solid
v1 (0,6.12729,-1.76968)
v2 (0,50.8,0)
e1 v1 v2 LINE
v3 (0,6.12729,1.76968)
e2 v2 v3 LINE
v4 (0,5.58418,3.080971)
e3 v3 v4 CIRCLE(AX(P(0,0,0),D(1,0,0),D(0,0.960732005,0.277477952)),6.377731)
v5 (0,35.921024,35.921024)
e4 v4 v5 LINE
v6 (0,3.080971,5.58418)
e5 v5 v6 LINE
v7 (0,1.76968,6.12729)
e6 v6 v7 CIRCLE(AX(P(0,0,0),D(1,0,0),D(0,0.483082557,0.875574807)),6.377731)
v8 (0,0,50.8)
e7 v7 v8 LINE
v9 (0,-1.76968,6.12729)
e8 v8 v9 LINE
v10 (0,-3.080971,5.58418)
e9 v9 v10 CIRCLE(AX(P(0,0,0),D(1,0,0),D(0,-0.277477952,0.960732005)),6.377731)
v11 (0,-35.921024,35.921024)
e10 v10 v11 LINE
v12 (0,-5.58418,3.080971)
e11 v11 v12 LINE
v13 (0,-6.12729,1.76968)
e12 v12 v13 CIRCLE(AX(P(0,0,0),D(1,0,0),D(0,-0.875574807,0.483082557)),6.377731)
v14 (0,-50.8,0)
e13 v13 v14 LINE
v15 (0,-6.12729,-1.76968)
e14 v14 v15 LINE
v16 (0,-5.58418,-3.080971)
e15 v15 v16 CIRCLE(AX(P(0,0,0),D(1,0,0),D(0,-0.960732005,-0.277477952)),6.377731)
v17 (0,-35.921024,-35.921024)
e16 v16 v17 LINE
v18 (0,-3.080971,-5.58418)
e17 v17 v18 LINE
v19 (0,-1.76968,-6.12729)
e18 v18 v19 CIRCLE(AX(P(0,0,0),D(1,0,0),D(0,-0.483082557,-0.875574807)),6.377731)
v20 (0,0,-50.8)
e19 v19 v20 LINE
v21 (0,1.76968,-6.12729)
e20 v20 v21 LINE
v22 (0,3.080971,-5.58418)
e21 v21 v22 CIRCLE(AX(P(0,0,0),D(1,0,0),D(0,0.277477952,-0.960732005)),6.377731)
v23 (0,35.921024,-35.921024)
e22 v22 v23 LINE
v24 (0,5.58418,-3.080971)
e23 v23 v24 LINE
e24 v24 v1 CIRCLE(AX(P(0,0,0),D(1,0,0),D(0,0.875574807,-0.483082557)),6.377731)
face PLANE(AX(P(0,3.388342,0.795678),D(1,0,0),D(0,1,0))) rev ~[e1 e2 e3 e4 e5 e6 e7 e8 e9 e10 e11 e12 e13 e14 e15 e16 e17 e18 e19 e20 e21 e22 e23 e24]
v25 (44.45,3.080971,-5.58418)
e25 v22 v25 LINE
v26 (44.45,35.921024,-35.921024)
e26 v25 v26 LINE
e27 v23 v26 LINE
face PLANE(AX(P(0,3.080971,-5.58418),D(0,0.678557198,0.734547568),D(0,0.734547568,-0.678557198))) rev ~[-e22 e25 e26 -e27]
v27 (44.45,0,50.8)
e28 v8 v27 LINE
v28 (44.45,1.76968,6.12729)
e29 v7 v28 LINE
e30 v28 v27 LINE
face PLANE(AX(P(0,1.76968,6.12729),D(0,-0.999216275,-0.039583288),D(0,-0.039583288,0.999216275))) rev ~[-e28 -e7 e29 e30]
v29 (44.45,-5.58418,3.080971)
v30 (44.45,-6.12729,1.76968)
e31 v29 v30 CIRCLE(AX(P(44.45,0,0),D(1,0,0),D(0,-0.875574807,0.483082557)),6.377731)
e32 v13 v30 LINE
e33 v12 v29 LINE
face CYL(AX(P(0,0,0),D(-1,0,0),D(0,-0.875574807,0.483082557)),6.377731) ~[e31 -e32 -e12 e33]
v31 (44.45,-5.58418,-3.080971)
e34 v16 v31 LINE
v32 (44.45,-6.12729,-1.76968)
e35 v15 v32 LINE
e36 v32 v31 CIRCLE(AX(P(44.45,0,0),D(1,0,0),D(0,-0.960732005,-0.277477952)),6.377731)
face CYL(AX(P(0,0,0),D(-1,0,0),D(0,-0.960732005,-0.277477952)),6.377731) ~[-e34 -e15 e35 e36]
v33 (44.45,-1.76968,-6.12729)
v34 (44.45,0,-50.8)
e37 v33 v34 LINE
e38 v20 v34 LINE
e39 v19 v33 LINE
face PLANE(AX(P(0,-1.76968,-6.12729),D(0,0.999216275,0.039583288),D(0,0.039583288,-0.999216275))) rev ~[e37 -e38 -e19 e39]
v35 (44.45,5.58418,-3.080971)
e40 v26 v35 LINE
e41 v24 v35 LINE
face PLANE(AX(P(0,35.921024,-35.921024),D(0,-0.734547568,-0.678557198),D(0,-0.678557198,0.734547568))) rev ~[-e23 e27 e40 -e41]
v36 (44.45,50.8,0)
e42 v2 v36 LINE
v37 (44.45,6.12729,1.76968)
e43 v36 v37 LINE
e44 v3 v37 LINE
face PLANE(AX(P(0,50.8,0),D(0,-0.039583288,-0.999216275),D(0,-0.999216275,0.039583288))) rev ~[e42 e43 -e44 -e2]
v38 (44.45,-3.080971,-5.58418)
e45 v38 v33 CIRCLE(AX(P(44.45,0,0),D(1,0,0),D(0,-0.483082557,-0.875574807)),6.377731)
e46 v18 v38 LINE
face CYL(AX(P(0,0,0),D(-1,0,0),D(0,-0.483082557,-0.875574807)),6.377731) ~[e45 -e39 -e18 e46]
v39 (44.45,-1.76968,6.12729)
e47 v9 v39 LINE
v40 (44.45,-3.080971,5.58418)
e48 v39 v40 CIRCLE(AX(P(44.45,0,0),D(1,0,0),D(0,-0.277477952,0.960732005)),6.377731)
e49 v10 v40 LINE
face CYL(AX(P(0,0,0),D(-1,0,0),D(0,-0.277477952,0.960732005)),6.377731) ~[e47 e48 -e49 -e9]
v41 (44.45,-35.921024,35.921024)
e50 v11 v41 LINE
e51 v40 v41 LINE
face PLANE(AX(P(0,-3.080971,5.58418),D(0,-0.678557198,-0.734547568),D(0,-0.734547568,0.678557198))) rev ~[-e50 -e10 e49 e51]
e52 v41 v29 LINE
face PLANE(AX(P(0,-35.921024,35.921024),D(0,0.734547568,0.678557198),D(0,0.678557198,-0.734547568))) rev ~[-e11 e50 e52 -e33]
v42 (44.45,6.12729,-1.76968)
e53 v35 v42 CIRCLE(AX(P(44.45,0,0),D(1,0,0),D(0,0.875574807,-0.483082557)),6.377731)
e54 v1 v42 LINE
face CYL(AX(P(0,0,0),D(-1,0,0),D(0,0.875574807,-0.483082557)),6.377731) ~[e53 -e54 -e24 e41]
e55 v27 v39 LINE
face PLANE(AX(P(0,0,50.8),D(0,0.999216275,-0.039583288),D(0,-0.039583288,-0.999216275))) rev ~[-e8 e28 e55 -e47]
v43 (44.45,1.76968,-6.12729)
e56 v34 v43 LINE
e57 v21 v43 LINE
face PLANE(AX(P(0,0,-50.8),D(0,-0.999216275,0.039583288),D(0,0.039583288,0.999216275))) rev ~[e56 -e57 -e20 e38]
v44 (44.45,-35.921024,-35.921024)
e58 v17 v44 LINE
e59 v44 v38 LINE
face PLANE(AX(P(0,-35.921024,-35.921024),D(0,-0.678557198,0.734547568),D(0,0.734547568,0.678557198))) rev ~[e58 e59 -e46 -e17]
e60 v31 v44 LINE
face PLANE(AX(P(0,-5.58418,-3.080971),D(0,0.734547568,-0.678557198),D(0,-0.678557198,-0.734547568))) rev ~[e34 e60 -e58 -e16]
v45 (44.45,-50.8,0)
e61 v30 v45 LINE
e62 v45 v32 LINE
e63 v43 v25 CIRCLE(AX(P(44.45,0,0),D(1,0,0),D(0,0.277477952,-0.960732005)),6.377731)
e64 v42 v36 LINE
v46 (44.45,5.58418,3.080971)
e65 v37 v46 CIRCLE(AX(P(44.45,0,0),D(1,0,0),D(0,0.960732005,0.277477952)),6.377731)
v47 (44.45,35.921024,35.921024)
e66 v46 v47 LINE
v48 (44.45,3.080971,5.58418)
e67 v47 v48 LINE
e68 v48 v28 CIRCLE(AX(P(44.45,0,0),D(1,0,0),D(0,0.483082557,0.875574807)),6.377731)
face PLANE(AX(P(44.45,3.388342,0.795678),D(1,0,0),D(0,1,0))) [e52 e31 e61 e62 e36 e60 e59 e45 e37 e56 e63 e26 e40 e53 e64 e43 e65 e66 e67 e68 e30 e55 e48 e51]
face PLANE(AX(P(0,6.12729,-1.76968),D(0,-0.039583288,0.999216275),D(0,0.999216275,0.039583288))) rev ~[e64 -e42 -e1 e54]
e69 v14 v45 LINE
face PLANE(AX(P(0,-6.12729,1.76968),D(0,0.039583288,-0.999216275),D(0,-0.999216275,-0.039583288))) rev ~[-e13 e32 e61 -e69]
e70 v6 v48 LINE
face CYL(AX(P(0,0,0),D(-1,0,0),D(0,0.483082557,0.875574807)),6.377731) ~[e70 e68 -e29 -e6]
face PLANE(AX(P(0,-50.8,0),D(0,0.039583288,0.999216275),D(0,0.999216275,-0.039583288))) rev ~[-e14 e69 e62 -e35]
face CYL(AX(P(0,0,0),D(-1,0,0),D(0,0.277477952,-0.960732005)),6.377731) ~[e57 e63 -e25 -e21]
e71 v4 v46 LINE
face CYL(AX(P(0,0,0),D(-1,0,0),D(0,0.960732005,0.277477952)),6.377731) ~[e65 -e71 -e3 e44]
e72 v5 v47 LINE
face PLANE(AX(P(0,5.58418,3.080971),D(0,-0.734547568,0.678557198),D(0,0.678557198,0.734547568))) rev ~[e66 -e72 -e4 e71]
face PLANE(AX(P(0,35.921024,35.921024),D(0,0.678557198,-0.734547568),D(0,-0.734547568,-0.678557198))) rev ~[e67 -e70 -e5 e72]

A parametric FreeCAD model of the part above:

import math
import FreeCAD as App
import Part
import Sketcher
from FreeCAD import Vector
Q = App.Units.Quantity

doc = App.newDocument("Part")
params = doc.addObject("Spreadsheet::Sheet", "Params")
for row, (alias, value) in enumerate([
    ("pad1_length", "1.75 in"),
], start=1):
    params.set(f"A{row}", alias)
    params.set(f"B{row}", "=" + value)
    params.setAlias(f"B{row}", alias)

body = doc.addObject("PartDesign::Body", "Body")

sketch1 = body.newObject("Sketcher::SketchObject", "Sketch")
sketch1.AttachmentSupport = (doc.getObject("YZ_Plane"), [""])
sketch1.MapMode = "FlatFace"
sketch1.addGeometry(Part.LineSegment(Vector(1.76968, 6.12729, 0), Vector(0, 50.8, 0)), False)
sketch1.addGeometry(Part.LineSegment(Vector(0, 50.8, 0), Vector(-1.76968, 6.12729, 0)), False)
sketch1.addGeometry(Part.ArcOfCircle(Part.Circle(Vector(0, 0, 0), Vector(0, 0, 1), 6.377731), math.radians(106.109738), math.radians(118.886923)), False)
sketch1.addGeometry(Part.LineSegment(Vector(-3.080971, 5.58418, 0), Vector(-35.921024, 35.921024, 0)), False)
sketch1.addGeometry(Part.LineSegment(Vector(-35.921024, 35.921024, 0), Vector(-5.58418, 3.080971, 0)), False)
sketch1.addGeometry(Part.ArcOfCircle(Part.Circle(Vector(0, 0, 0), Vector(0, 0, 1), 6.377731), math.radians(151.113077), math.radians(163.890262)), False)
sketch1.addGeometry(Part.LineSegment(Vector(-6.12729, 1.76968, 0), Vector(-50.8, 0, 0)), False)
sketch1.addGeometry(Part.LineSegment(Vector(-50.8, 0, 0), Vector(-6.12729, -1.76968, 0)), False)
sketch1.addGeometry(Part.ArcOfCircle(Part.Circle(Vector(0, 0, 0), Vector(0, 0, 1), 6.377731), math.radians(-163.890262), math.radians(-151.113077)), False)
sketch1.addGeometry(Part.LineSegment(Vector(-5.58418, -3.080971, 0), Vector(-35.921024, -35.921024, 0)), False)
sketch1.addGeometry(Part.LineSegment(Vector(-35.921024, -35.921024, 0), Vector(-3.080971, -5.58418, 0)), False)
sketch1.addGeometry(Part.ArcOfCircle(Part.Circle(Vector(0, 0, 0), Vector(0, 0, 1), 6.377731), math.radians(-118.886923), math.radians(-106.109738)), False)
sketch1.addGeometry(Part.LineSegment(Vector(-1.76968, -6.12729, 0), Vector(0, -50.8, 0)), False)
sketch1.addGeometry(Part.LineSegment(Vector(0, -50.8, 0), Vector(1.76968, -6.12729, 0)), False)
sketch1.addGeometry(Part.ArcOfCircle(Part.Circle(Vector(0, 0, 0), Vector(0, 0, 1), 6.377731), math.radians(-73.890262), math.radians(-61.113077)), False)
sketch1.addGeometry(Part.LineSegment(Vector(3.080971, -5.58418, 0), Vector(35.921024, -35.921024, 0)), False)
sketch1.addGeometry(Part.LineSegment(Vector(35.921024, -35.921024, 0), Vector(5.58418, -3.080971, 0)), False)
sketch1.addGeometry(Part.ArcOfCircle(Part.Circle(Vector(0, 0, 0), Vector(0, 0, 1), 6.377731), math.radians(-28.886923), math.radians(-16.109738)), False)
sketch1.addGeometry(Part.LineSegment(Vector(6.12729, -1.76968, 0), Vector(50.8, 0, 0)), False)
sketch1.addGeometry(Part.LineSegment(Vector(50.8, 0, 0), Vector(6.12729, 1.76968, 0)), False)
sketch1.addGeometry(Part.ArcOfCircle(Part.Circle(Vector(0, 0, 0), Vector(0, 0, 1), 6.377731), math.radians(16.109738), math.radians(28.886923)), False)
sketch1.addGeometry(Part.LineSegment(Vector(5.58418, 3.080971, 0), Vector(35.921024, 35.921024, 0)), False)
sketch1.addGeometry(Part.LineSegment(Vector(35.921024, 35.921024, 0), Vector(3.080971, 5.58418, 0)), False)
sketch1.addGeometry(Part.ArcOfCircle(Part.Circle(Vector(0, 0, 0), Vector(0, 0, 1), 6.377731), math.radians(61.113077), math.radians(73.890262)), False)
sketch1.addConstraint(Sketcher.Constraint("Coincident", 0, 2, 1, 1))
sketch1.addConstraint(Sketcher.Constraint("Coincident", 1, 2, 2, 1))
sketch1.addConstraint(Sketcher.Constraint("Coincident", 2, 2, 3, 1))
sketch1.addConstraint(Sketcher.Constraint("Coincident", 3, 2, 4, 1))
sketch1.addConstraint(Sketcher.Constraint("Coincident", 4, 2, 5, 1))
sketch1.addConstraint(Sketcher.Constraint("Coincident", 5, 2, 6, 1))
sketch1.addConstraint(Sketcher.Constraint("Coincident", 6, 2, 7, 1))
sketch1.addConstraint(Sketcher.Constraint("Coincident", 7, 2, 8, 1))
sketch1.addConstraint(Sketcher.Constraint("Coincident", 8, 2, 9, 1))
sketch1.addConstraint(Sketcher.Constraint("Coincident", 9, 2, 10, 1))
sketch1.addConstraint(Sketcher.Constraint("Coincident", 10, 2, 11, 1))
sketch1.addConstraint(Sketcher.Constraint("Coincident", 11, 2, 12, 1))
sketch1.addConstraint(Sketcher.Constraint("Coincident", 12, 2, 13, 1))
sketch1.addConstraint(Sketcher.Constraint("Coincident", 13, 2, 14, 1))
sketch1.addConstraint(Sketcher.Constraint("Coincident", 14, 2, 15, 1))
sketch1.addConstraint(Sketcher.Constraint("Coincident", 15, 2, 16, 1))
sketch1.addConstraint(Sketcher.Constraint("Coincident", 16, 2, 17, 1))
sketch1.addConstraint(Sketcher.Constraint("Coincident", 17, 2, 18, 1))
sketch1.addConstraint(Sketcher.Constraint("Coincident", 18, 2, 19, 1))
sketch1.addConstraint(Sketcher.Constraint("Coincident", 19, 2, 20, 1))
sketch1.addConstraint(Sketcher.Constraint("Coincident", 20, 2, 21, 1))
sketch1.addConstraint(Sketcher.Constraint("Coincident", 21, 2, 22, 1))
sketch1.addConstraint(Sketcher.Constraint("Coincident", 22, 2, 23, 1))
sketch1.addConstraint(Sketcher.Constraint("Coincident", 23, 2, 0, 1))
sketch1.addConstraint(Sketcher.Constraint("Coincident", 2, 3, -1, 1))
sketch1.addConstraint(Sketcher.Constraint("Coincident", 5, 3, -1, 1))
sketch1.addConstraint(Sketcher.Constraint("Coincident", 8, 3, -1, 1))
sketch1.addConstraint(Sketcher.Constraint("Coincident", 11, 3, -1, 1))
sketch1.addConstraint(Sketcher.Constraint("Coincident", 14, 3, -1, 1))
sketch1.addConstraint(Sketcher.Constraint("Coincident", 17, 3, -1, 1))
sketch1.addConstraint(Sketcher.Constraint("Coincident", 20, 3, -1, 1))
sketch1.addConstraint(Sketcher.Constraint("Coincident", 23, 3, -1, 1))
sketch1.addConstraint(Sketcher.Constraint("Equal", 2, 5))
sketch1.addConstraint(Sketcher.Constraint("Equal", 5, 8))
sketch1.addConstraint(Sketcher.Constraint("Equal", 8, 11))
sketch1.addConstraint(Sketcher.Constraint("Equal", 11, 14))
sketch1.addConstraint(Sketcher.Constraint("Equal", 14, 17))
sketch1.addConstraint(Sketcher.Constraint("Equal", 17, 20))
sketch1.addConstraint(Sketcher.Constraint("Equal", 20, 23))
sketch1.addConstraint(Sketcher.Constraint("Symmetric", 0, 2, 12, 2, -1, 1))
sketch1.addConstraint(Sketcher.Constraint("Symmetric", 3, 2, 15, 2, -1, 1))
sketch1.addConstraint(Sketcher.Constraint("Symmetric", 6, 2, 18, 2, -1, 1))
sketch1.addConstraint(Sketcher.Constraint("Symmetric", 9, 2, 21, 2, -1, 1))
sketch1.addConstraint(Sketcher.Constraint("Symmetric", 9, 2, 15, 2, -2))
sketch1.addConstraint(Sketcher.Constraint("PointOnObject", 0, 2, -2))
sketch1.addConstraint(Sketcher.Constraint("PointOnObject", 6, 2, -1))
sketch1.addConstraint(Sketcher.Constraint("Perpendicular", 0, 6))
sketch1.addConstraint(Sketcher.Constraint("Perpendicular", 1, 7))
sketch1.addConstraint(Sketcher.Constraint("Perpendicular", 3, 9))
sketch1.addConstraint(Sketcher.Constraint("Perpendicular", 4, 10))
sketch1.addConstraint(Sketcher.Constraint("Perpendicular", 6, 12))
sketch1.addConstraint(Sketcher.Constraint("Perpendicular", 7, 13))
sketch1.addConstraint(Sketcher.Constraint("Perpendicular", 9, 15))
sketch1.addConstraint(Sketcher.Constraint("Perpendicular", 10, 16))
sketch1.addConstraint(Sketcher.Constraint("Perpendicular", 12, 18))
sketch1.addConstraint(Sketcher.Constraint("Perpendicular", 13, 19))
sketch1.addConstraint(Sketcher.Constraint("Perpendicular", 15, 21))
sketch1.addConstraint(Sketcher.Constraint("Perpendicular", 16, 22))
sketch1.addConstraint(Sketcher.Constraint("Horizontal", 11, 2, 13, 2))
sketch1.addConstraint(Sketcher.Constraint("Horizontal", 10, 2, 14, 2))
sketch1.addConstraint(Sketcher.Constraint("Equal", 3, 4))
sketch1.addConstraint(Sketcher.Constraint("Equal", 1, 6))
sketch1.addConstraint(Sketcher.Constraint("DistanceY", -1, 1, 0, 2, Q("2 in")))
sketch1.addConstraint(Sketcher.Constraint("Radius", 2, 6.377731))
sketch1.addConstraint(Sketcher.Constraint("DistanceX", 4, 2, 1, 2, 3.814501))
sketch1.addConstraint(Sketcher.Constraint("Distance", 0, 44.707748))
sketch1.addConstraint(Sketcher.Constraint("Distance", 3, 44.707866))
pad1 = body.newObject("PartDesign::Pad", "Pad")
pad1.Profile = sketch1
pad1.setExpression("Length", "Params.pad1_length")

doc.recompute()
